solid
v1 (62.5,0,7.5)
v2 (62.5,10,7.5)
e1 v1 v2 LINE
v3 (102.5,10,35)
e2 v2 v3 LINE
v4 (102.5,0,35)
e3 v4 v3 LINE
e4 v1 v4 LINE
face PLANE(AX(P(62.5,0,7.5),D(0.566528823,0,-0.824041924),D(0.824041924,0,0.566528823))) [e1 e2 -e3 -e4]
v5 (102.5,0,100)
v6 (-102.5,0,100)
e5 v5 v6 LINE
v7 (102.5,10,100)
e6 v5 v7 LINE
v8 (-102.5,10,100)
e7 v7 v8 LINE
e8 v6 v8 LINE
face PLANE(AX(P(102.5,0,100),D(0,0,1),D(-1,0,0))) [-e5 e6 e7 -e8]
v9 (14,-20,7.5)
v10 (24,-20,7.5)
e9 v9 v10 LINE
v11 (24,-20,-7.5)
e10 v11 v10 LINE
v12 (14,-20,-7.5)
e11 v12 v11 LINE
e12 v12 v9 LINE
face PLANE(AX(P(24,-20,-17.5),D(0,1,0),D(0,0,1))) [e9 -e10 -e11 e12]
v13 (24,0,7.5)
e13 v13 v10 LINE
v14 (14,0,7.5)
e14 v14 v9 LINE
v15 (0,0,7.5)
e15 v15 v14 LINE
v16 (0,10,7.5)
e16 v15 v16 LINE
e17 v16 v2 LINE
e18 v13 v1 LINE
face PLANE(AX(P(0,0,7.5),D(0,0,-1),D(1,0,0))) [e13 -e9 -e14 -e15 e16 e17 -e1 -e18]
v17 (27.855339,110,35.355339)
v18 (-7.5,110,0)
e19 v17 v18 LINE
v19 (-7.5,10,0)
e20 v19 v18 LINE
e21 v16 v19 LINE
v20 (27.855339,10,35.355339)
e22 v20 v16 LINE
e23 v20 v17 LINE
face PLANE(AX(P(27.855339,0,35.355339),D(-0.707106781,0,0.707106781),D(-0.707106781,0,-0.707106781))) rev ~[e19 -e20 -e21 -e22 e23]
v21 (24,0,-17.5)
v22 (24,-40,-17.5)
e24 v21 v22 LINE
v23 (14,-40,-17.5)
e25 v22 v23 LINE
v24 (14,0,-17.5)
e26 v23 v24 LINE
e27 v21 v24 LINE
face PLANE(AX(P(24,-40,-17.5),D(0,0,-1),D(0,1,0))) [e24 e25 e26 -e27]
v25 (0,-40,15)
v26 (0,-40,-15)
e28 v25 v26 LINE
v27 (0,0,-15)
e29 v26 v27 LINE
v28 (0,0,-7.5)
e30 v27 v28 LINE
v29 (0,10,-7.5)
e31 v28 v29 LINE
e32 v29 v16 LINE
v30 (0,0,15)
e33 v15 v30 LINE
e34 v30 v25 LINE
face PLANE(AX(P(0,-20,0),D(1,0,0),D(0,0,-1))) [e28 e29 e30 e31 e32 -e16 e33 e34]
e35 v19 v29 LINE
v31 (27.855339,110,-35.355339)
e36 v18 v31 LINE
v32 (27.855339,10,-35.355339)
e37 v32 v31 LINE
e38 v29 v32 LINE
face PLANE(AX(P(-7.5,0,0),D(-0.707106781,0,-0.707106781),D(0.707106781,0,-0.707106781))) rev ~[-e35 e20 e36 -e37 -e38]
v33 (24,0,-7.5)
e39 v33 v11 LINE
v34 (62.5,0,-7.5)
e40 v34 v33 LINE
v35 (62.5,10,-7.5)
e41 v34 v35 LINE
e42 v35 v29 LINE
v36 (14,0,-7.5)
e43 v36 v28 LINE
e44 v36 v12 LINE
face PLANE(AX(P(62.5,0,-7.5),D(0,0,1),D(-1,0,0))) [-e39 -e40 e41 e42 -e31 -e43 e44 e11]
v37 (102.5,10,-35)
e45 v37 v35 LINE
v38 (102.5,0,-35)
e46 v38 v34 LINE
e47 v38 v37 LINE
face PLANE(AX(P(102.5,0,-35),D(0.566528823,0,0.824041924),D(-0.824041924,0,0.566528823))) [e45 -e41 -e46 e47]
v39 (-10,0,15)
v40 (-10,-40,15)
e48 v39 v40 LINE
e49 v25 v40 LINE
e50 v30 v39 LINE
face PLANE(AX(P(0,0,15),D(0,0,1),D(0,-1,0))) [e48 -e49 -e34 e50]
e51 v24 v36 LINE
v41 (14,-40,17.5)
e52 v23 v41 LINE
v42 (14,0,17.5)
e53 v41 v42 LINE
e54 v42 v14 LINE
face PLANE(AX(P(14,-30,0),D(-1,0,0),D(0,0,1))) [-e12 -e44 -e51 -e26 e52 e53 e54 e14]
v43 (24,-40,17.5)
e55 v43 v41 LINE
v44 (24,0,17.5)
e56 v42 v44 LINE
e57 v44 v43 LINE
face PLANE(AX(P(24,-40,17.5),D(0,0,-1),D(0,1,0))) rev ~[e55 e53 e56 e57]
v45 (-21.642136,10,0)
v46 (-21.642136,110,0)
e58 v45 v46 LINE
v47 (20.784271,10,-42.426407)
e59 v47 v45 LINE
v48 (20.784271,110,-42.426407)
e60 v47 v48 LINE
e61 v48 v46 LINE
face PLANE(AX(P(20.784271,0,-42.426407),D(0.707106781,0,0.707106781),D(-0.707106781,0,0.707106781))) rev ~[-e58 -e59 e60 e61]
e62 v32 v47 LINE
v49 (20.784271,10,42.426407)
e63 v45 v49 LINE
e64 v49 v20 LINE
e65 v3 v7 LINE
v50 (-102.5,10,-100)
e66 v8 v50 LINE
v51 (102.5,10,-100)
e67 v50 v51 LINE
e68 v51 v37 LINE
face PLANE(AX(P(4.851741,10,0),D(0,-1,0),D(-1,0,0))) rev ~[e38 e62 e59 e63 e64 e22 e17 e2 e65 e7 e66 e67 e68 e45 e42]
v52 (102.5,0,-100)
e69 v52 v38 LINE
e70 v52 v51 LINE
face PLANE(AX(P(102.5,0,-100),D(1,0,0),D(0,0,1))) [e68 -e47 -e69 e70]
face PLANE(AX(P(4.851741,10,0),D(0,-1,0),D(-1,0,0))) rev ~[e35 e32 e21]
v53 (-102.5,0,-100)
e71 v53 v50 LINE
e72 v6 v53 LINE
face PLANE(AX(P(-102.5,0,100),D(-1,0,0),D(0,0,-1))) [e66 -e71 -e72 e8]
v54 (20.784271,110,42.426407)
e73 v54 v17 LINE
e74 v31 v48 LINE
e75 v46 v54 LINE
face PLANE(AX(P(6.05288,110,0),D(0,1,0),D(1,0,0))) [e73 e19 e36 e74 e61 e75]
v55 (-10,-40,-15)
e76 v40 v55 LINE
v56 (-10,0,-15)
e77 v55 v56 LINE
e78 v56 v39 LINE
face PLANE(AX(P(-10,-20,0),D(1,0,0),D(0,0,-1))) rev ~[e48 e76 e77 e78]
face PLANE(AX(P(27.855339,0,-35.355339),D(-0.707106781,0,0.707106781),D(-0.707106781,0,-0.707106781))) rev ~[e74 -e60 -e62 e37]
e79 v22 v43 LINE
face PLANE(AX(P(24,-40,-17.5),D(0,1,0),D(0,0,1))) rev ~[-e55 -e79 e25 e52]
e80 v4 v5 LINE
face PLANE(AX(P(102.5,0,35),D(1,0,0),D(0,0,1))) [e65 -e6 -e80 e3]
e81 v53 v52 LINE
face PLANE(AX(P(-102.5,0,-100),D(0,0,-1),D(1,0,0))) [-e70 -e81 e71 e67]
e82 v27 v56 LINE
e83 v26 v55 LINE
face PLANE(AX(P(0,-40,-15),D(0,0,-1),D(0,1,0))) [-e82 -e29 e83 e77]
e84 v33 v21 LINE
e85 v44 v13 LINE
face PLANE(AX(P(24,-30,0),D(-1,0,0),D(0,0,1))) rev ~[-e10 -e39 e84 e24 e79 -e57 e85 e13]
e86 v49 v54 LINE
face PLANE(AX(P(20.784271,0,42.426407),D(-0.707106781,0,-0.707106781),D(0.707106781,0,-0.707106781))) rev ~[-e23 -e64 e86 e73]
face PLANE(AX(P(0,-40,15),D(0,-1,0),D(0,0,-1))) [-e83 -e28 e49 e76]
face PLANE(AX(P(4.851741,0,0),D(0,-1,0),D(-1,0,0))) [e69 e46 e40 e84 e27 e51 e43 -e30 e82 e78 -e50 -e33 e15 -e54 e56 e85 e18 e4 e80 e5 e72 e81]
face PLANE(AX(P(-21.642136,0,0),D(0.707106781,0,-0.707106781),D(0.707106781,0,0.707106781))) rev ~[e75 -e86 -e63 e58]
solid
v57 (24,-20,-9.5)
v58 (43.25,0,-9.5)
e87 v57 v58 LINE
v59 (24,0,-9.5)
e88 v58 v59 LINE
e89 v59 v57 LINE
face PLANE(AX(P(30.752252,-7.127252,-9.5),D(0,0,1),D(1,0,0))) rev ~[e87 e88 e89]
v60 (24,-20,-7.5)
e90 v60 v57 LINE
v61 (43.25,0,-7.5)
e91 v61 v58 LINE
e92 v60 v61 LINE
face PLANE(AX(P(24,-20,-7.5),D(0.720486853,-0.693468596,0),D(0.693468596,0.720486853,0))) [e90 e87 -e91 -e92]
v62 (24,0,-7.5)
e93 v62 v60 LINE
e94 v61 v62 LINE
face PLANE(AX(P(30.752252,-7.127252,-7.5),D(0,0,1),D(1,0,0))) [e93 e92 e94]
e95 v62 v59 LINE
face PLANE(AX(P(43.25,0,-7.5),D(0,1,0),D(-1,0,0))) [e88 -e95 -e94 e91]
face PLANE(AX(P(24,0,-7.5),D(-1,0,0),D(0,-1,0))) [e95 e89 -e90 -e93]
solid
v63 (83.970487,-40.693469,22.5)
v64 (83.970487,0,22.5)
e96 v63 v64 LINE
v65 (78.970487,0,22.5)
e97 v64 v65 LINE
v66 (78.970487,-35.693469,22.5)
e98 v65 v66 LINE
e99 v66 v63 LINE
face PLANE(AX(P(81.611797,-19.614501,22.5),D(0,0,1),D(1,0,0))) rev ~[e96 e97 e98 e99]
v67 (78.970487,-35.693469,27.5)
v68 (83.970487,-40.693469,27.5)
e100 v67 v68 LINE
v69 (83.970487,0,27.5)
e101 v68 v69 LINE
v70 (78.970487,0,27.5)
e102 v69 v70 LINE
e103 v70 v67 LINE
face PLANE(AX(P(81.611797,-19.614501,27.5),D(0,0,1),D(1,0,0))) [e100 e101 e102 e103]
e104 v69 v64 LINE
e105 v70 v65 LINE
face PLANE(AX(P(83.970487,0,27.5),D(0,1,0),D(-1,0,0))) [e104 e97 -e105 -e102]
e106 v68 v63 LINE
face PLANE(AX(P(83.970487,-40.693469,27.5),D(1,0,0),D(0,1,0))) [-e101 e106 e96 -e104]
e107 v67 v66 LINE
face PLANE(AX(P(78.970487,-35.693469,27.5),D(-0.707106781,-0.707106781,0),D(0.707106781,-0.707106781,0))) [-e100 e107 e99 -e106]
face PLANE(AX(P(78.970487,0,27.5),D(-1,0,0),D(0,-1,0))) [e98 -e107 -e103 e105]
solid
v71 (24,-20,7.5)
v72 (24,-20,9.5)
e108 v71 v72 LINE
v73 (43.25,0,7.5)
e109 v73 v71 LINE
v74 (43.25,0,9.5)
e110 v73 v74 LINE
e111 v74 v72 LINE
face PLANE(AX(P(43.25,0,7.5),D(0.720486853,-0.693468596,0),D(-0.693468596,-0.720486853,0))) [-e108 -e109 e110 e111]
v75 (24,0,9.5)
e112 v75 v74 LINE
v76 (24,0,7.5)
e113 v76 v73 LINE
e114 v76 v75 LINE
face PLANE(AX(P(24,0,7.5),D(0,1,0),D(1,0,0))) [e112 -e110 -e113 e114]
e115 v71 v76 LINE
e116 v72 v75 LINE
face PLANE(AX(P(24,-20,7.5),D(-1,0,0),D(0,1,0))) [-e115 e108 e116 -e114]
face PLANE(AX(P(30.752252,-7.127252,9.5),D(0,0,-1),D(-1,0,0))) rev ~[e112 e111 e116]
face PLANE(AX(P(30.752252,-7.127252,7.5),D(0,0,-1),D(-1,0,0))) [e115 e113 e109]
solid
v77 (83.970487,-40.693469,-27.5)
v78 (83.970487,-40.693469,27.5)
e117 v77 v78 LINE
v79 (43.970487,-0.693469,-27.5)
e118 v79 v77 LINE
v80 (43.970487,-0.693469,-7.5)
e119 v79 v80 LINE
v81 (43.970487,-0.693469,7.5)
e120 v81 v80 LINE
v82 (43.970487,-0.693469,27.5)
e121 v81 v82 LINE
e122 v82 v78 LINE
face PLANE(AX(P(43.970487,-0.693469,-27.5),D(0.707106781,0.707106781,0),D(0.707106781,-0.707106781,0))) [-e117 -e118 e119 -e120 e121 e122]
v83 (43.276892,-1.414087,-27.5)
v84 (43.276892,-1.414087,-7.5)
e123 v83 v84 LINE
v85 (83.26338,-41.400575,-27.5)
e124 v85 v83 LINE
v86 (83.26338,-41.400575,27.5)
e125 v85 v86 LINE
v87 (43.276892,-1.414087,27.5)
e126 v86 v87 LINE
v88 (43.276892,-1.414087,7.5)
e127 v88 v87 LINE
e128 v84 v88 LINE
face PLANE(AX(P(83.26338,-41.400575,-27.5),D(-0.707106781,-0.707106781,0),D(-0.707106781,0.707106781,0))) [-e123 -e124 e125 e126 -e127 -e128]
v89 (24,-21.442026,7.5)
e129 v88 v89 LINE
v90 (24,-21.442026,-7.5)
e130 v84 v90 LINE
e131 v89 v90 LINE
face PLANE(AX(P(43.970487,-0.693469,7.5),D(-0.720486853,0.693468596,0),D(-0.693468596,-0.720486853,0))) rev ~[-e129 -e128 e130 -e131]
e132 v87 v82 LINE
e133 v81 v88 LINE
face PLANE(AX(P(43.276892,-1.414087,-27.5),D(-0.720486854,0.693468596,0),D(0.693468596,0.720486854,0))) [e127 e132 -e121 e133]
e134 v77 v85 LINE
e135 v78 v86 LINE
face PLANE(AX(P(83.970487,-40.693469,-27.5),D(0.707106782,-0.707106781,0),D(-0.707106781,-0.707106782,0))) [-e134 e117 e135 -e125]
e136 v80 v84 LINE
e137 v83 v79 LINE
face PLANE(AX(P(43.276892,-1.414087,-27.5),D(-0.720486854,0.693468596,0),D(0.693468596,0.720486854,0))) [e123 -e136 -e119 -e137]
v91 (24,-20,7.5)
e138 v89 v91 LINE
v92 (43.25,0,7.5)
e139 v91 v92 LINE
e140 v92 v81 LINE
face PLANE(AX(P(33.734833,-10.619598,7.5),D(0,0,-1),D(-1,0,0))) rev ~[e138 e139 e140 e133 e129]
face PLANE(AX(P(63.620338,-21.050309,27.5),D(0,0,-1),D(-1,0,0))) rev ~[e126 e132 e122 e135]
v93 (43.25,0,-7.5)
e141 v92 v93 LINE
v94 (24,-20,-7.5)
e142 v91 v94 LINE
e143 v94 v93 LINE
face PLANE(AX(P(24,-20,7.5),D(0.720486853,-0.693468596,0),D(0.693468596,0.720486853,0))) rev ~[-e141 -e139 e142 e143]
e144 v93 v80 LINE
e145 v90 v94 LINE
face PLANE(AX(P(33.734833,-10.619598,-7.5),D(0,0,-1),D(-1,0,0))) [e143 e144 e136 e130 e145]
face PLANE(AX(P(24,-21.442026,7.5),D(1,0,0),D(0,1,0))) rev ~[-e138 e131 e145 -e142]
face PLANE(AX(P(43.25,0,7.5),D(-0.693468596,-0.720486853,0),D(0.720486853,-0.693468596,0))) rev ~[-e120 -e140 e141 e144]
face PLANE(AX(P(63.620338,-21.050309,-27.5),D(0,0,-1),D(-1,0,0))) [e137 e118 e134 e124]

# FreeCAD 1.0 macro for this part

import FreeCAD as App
import Part
import Sketcher
from FreeCAD import Vector
Q = App.Units.Quantity


def add_polygon(sketch, points):
    """Adds a closed chain of lines whose ends are joined by coincident constraints."""
    first, n = sketch.GeometryCount, len(points)
    for a, b in zip(points, points[1:] + points[:1]):
        sketch.addGeometry(Part.LineSegment(App.Vector(*a, 0), App.Vector(*b, 0)), False)
    for i in range(n):
        sketch.addConstraint(Sketcher.Constraint("Coincident", first + i, 2, first + (i + 1) % n, 1))

doc = App.newDocument("Part")
body = doc.addObject("PartDesign::Body", "Body")

# Sketch on XZ plane
sketch1 = doc.addObject("Sketcher::SketchObject", "Sketch")
body.addObject(sketch1)
sketch1.AttachmentSupport = (doc.XZ_Plane, [""])
sketch1.MapMode = "FlatFace"
add_polygon(sketch1, [(102, 100), (102, 35), (62, 8), (0, 8), (0, -8), (62, -8), (102, -35), (102, -100), (-102, -100), (-102, 100)])  # lines 0-9
sketch1.addConstraint([
    Sketcher.Constraint("Vertical", 0),
    Sketcher.Constraint("Horizontal", 2),
    Sketcher.Constraint("Vertical", 3),
    Sketcher.Constraint("Horizontal", 4),
    Sketcher.Constraint("Vertical", 6),
    Sketcher.Constraint("Horizontal", 7),
    Sketcher.Constraint("Vertical", 8),
    Sketcher.Constraint("Horizontal", 9),
    Sketcher.Constraint("Symmetric", 2, 2, 3, 2, -1, 1),
    Sketcher.Constraint("Symmetric", 6, 2, 8, 2, -1, 1),
    Sketcher.Constraint("Symmetric", 0, 2, 5, 2, -1),
    Sketcher.Constraint("Vertical", 1, 2, 4, 2),
    Sketcher.Constraint("DistanceX", 7, 2, 7, 1, 205.0),
    Sketcher.Constraint("DistanceY", 0, 2, 0, 1, 65.0),
    Sketcher.Constraint("DistanceY", 3, 2, 3, 1, 15.0),
    Sketcher.Constraint("DistanceY", 8, 1, 8, 2, 200.0),
    Sketcher.Constraint("DistanceX", 2, 2, 2, 1, 62.5),
])
pad1 = doc.addObject("PartDesign::Pad", "Pad")
body.addObject(pad1)
pad1.Profile = sketch1
pad1.Length = 10
pad1.Reversed = True

# Sketch on XZ plane
sketch2 = doc.addObject("Sketcher::SketchObject", "Sketch001")
body.addObject(sketch2)
sketch2.AttachmentSupport = (doc.XZ_Plane, [""])
sketch2.MapMode = "FlatFace"
add_polygon(sketch2, [(-8, 0), (28, -35), (21, -42), (-22, 0), (21, 42), (28, 35)])  # lines 0-5
sketch2.addConstraint([
    Sketcher.Constraint("Symmetric", 1, 2, 3, 2, -1),
    Sketcher.Constraint("Symmetric", 0, 2, 4, 2, -1),
    Sketcher.Constraint("PointOnObject", 2, 2, -1),
    Sketcher.Constraint("PointOnObject", 5, 2, -1),
    Sketcher.Constraint("Perpendicular", 0, 1),
    Sketcher.Constraint("Perpendicular", 1, 2),
    Sketcher.Constraint("Perpendicular", 2, 3),
    Sketcher.Constraint("Distance", 0, 50.0),
    Sketcher.Constraint("Distance", 1, 10.0),
    Sketcher.Constraint("DistanceX", 5, 2, -1, 1, 7.5),
])
pad2 = doc.addObject("PartDesign::Pad", "Pad001")
body.addObject(pad2)
pad2.Profile = sketch2
pad2.Length = 110
pad2.Reversed = True

# Sketch on YZ plane
sketch3 = doc.addObject("Sketcher::SketchObject", "Sketch002")
body.addObject(sketch3)
sketch3.AttachmentSupport = (doc.YZ_Plane, [""])
sketch3.MapMode = "FlatFace"
add_polygon(sketch3, [(-40, 15), (-40, -15), (0, -15), (0, 15)])  # lines 0-3
sketch3.addConstraint([
    Sketcher.Constraint("Vertical", 0),
    Sketcher.Constraint("Horizontal", 1),
    Sketcher.Constraint("Vertical", 2),
    Sketcher.Constraint("Horizontal", 3),
    Sketcher.Constraint("Symmetric", 1, 2, 2, 2, -1, 1),
    Sketcher.Constraint("DistanceX", 1, 1, 1, 2, 40.0),
    Sketcher.Constraint("DistanceY", 0, 2, 0, 1, 30.0),
])
pad3 = doc.addObject("PartDesign::Pad", "Pad002")
body.addObject(pad3)
pad3.Profile = sketch3
pad3.Length = 10
pad3.Reversed = True

# Sketch on XZ plane
sketch4 = doc.addObject("Sketcher::SketchObject", "Sketch003")
body.addObject(sketch4)
sketch4.AttachmentSupport = (doc.XZ_Plane, [""])
sketch4.MapMode = "FlatFace"
add_polygon(sketch4, [(14, 8), (14, 18), (24, 18), (24, 8)])  # lines 0-3
add_polygon(sketch4, [(14, -18), (14, -8), (24, -8), (24, -18)])  # lines 4-7
sketch4.addConstraint([
    Sketcher.Constraint("Vertical", 0),
    Sketcher.Constraint("Horizontal", 1),
    Sketcher.Constraint("Vertical", 2),
    Sketcher.Constraint("Horizontal", 3),
    Sketcher.Constraint("Vertical", 4),
    Sketcher.Constraint("Horizontal", 5),
    Sketcher.Constraint("Vertical", 6),
    Sketcher.Constraint("Horizontal", 7),
    Sketcher.Constraint("Symmetric", 3, 2, 4, 2, -1),
    Sketcher.Constraint("Symmetric", 1, 2, 6, 2, -1),
    Sketcher.Constraint("Equal", 7, 0),
    Sketcher.Constraint("DistanceX", 1, 1, 1, 2, 10.0),
    Sketcher.Constraint("DistanceX", -1, 1, 0, 2, 14.0),
    Sketcher.Constraint("DistanceY", 4, 2, 3, 2, 15.0),
])
pad4 = doc.addObject("PartDesign::Pad", "Pad003")
body.addObject(pad4)
pad4.Profile = sketch4
pad4.Length = 20

# Sketch on YZ plane
sketch5 = doc.addObject("Sketcher::SketchObject", "Sketch004")
body.addObject(sketch5)
sketch5.AttachmentSupport = (doc.YZ_Plane, [""])
sketch5.MapMode = "FlatFace"
sketch5.AttachmentOffset = App.Placement(Vector(0, 0, 24), App.Rotation())
add_polygon(sketch5, [(-20, -18), (-40, -18), (-40, 18), (-20, 18)])  # lines 0-3
sketch5.addConstraint([
    Sketcher.Constraint("Horizontal", 0),
    Sketcher.Constraint("Vertical", 1),
    Sketcher.Constraint("Horizontal", 2),
    Sketcher.Constraint("Vertical", 3),
    Sketcher.Constraint("DistanceX", 0, 2, 0, 1, 20.0),
    Sketcher.Constraint("DistanceY", 1, 1, 1, 2, 35.0),
    Sketcher.Constraint("DistanceX", 0, 2, -1, 1, 40.0),
    Sketcher.Constraint("DistanceY", 0, 2, -1, 1, 17.5),
])
pad5 = doc.addObject("PartDesign::Pad", "Pad004")
body.addObject(pad5)
pad5.Profile = sketch5
pad5.Length = 10
pad5.Reversed = True
body2 = doc.addObject("PartDesign::Body", "Body001")

# Sketch on XY plane
sketch6 = doc.addObject("Sketcher::SketchObject", "Sketch005")
body2.addObject(sketch6)
sketch6.AttachmentSupport = (doc.getObject("XY_Plane001"), [""])
sketch6.MapMode = "FlatFace"
sketch6.AttachmentOffset = App.Placement(Vector(0, 0, 7.5), App.Rotation())
add_polygon(sketch6, [(43.2, 0), (24, -20), (24, -21.4), (44, -0.7)])  # lines 0-3
sketch6.addConstraint([
    Sketcher.Constraint("Vertical", 1),
    Sketcher.Constraint("PointOnObject", 3, 2, -1),
    Sketcher.Constraint("Parallel", 0, 2),
    Sketcher.Constraint("Perpendicular", 2, 3),
    Sketcher.Constraint("Distance", 3, 1.0),
    Sketcher.Constraint("DistanceX", -1, 1, 0, 2, 24.0),
    Sketcher.Constraint("DistanceY", 0, 2, -1, 1, 20.0),
    Sketcher.Constraint("DistanceX", -1, 1, 3, 2, 43.25),
])
pad6 = doc.addObject("PartDesign::Pad", "Pad005")
body2.addObject(pad6)
pad6.Profile = sketch6
pad6.Length = 15
pad6.Reversed = True

# Sketch on XY plane
sketch7 = doc.addObject("Sketcher::SketchObject", "Sketch006")
body2.addObject(sketch7)
sketch7.AttachmentSupport = (doc.getObject("XY_Plane001"), [""])
sketch7.MapMode = "FlatFace"
sketch7.AttachmentOffset = App.Placement(Vector(0, 0, 7.5), App.Rotation())
add_polygon(sketch7, [(44, -0.7), (43.3, -1.4), (83.3, -41.4), (84, -40.7)])  # lines 0-3
sketch7.addConstraint([
    Sketcher.Constraint("Perpendicular", 1, 2),
    Sketcher.Constraint("Perpendicular", 2, 3),
    Sketcher.Constraint("Angle", 1, Q("-45 deg")),
    Sketcher.Constraint("Distance", 2, 1.0),
    Sketcher.Constraint("DistanceX", 3, 2, 2, 2, 40.0),
    Sketcher.Constraint("DistanceX", -1, 1, 0, 2, 43.276892),
    Sketcher.Constraint("DistanceX", -1, 1, 1, 2, 83.26338),
    Sketcher.Constraint("DistanceY", 2, 2, -1, 1, 40.693469),
])
pad7 = doc.addObject("PartDesign::Pad", "Pad006")
body2.addObject(pad7)
pad7.Profile = sketch7
pad7.Type = "TwoLengths"
pad7.Length = 20
pad7.Length2 = 35
body3 = doc.addObject("PartDesign::Body", "Body002")

# Sketch on XY plane
sketch8 = doc.addObject("Sketcher::SketchObject", "Sketch007")
body3.addObject(sketch8)
sketch8.AttachmentSupport = (doc.getObject("XY_Plane002"), [""])
sketch8.MapMode = "FlatFace"
sketch8.AttachmentOffset = App.Placement(Vector(0, 0, 7.5), App.Rotation())
add_polygon(sketch8, [(24, 0), (24, -20), (43, 0)])  # lines 0-2
sketch8.addConstraint([
    Sketcher.Constraint("Vertical", 0),
    Sketcher.Constraint("Horizontal", 2),
    Sketcher.Constraint("PointOnObject", 1, 2, -1),
    Sketcher.Constraint("DistanceY", 0, 2, 0, 1, 20.0),
    Sketcher.Constraint("DistanceX", -1, 1, 0, 2, 24.0),
    Sketcher.Constraint("DistanceX", 2, 2, 2, 1, 19.25),
])
pad8 = doc.addObject("PartDesign::Pad", "Pad007")
body3.addObject(pad8)
pad8.Profile = sketch8
pad8.Length = 2
body4 = doc.addObject("PartDesign::Body", "Body003")

# Sketch on XY plane
sketch9 = doc.addObject("Sketcher::SketchObject", "Sketch008")
body4.addObject(sketch9)
sketch9.AttachmentSupport = (doc.getObject("XY_Plane003"), [""])
sketch9.MapMode = "FlatFace"
sketch9.AttachmentOffset = App.Placement(Vector(0, 0, -7.5), App.Rotation())
add_polygon(sketch9, [(24, 0), (24, -20), (43, 0)])  # lines 0-2
sketch9.addConstraint([
    Sketcher.Constraint("Vertical", 0),
    Sketcher.Constraint("Horizontal", 2),
    Sketcher.Constraint("PointOnObject", 1, 2, -1),
    Sketcher.Constraint("DistanceY", 0, 2, 0, 1, 20.0),
    Sketcher.Constraint("DistanceX", -1, 1, 0, 2, 24.0),
    Sketcher.Constraint("DistanceX", 2, 2, 2, 1, 19.25),
])
pad9 = doc.addObject("PartDesign::Pad", "Pad008")
body4.addObject(pad9)
pad9.Profile = sketch9
pad9.Length = 2
pad9.Reversed = True
body5 = doc.addObject("PartDesign::Body", "Body004")

# Sketch on XY plane
sketch10 = doc.addObject("Sketcher::SketchObject", "Sketch009")
body5.addObject(sketch10)
sketch10.AttachmentSupport = (doc.getObject("XY_Plane004"), [""])
sketch10.MapMode = "FlatFace"
sketch10.AttachmentOffset = App.Placement(Vector(0, 0, 27.5), App.Rotation())
add_polygon(sketch10, [(84, -41), (84, 0), (79, 0), (79, -36)])  # lines 0-3
sketch10.addConstraint([
    Sketcher.Constraint("Vertical", 0),
    Sketcher.Constraint("Horizontal", 1),
    Sketcher.Constraint("Vertical", 2),
    Sketcher.Constraint("PointOnObject", 0, 2, -1),
    Sketcher.Constraint("DistanceX", 1, 2, 1, 1, 5.0),
    Sketcher.Constraint("Angle", 3, Q("-45 deg")),
    Sketcher.Constraint("DistanceY", 0, 1, 0, 2, 40.693469),
    Sketcher.Constraint("DistanceX", -1, 1, 0, 2, 83.970487),
])
pad10 = doc.addObject("PartDesign::Pad", "Pad009")
body5.addObject(pad10)
pad10.Profile = sketch10
pad10.Length = 5
pad10.Reversed = True

doc.recompute()
